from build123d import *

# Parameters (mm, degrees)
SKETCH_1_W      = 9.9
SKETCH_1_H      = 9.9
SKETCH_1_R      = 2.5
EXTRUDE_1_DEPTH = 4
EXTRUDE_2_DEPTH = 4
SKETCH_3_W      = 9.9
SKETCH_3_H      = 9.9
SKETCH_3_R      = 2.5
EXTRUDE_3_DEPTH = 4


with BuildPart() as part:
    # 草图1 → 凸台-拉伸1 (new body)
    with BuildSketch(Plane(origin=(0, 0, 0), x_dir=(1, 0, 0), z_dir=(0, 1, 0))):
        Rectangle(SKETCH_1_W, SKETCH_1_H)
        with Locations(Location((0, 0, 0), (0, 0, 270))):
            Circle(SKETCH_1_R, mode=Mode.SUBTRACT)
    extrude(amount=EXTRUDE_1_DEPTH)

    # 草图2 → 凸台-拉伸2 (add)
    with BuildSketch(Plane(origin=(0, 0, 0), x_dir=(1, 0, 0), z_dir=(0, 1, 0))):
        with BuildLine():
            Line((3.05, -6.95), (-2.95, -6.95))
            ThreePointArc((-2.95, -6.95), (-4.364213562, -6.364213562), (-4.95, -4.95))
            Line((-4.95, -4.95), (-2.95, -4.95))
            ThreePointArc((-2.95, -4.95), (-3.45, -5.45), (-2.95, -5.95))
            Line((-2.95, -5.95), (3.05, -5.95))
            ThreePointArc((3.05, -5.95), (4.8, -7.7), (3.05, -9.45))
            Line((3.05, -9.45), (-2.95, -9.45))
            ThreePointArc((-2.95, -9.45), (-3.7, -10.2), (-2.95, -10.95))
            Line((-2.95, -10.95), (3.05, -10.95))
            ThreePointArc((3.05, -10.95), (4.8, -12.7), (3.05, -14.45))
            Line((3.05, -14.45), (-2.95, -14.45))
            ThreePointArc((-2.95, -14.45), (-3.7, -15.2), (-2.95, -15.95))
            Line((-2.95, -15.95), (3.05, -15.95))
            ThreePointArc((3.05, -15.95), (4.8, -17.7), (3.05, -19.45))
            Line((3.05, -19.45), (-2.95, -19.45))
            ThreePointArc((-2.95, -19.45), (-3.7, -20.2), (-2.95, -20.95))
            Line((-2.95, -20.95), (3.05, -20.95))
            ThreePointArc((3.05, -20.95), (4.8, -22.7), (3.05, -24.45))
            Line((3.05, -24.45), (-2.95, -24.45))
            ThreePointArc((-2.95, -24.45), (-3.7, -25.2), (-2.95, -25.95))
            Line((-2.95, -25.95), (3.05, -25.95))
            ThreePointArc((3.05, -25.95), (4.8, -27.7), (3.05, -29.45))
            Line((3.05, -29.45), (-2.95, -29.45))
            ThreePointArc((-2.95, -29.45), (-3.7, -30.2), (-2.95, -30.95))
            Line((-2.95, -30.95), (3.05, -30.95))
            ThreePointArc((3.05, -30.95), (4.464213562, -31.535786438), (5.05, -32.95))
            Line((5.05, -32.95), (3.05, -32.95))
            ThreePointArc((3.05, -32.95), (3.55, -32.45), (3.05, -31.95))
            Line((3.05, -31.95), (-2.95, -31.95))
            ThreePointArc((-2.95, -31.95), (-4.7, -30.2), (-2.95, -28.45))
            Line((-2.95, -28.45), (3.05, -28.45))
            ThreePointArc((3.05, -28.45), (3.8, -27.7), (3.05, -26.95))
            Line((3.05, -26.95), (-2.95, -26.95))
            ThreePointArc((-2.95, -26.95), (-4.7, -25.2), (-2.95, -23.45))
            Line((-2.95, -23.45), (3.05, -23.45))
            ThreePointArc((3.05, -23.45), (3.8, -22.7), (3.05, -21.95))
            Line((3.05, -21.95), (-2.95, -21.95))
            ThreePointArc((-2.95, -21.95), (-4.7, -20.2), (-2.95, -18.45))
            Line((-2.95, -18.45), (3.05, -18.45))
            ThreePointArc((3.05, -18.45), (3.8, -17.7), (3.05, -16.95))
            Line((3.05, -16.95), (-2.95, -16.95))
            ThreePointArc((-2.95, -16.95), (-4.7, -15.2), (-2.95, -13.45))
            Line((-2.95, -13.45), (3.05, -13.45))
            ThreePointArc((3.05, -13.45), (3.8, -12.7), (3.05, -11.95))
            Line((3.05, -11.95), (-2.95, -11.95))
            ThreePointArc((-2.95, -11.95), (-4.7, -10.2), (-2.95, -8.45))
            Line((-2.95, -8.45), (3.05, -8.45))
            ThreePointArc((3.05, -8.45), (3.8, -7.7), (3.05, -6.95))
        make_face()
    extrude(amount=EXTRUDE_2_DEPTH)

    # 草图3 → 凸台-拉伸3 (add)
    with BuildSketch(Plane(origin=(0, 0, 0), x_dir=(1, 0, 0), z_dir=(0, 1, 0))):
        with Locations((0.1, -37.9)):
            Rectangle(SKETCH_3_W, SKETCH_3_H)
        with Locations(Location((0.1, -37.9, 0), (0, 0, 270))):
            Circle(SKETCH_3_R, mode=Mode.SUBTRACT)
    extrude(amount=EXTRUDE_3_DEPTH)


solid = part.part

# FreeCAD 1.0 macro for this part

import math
import FreeCAD as App
import Part
import Sketcher

V = App.Vector
Q = App.Units.Quantity


def add_polygon(sketch, points):
    """Adds a closed chain of lines whose ends are joined by coincident constraints."""
    first, n = sketch.GeometryCount, len(points)
    for a, b in zip(points, points[1:] + points[:1]):
        sketch.addGeometry(Part.LineSegment(App.Vector(*a, 0), App.Vector(*b, 0)), False)
    for i in range(n):
        sketch.addConstraint(Sketcher.Constraint("Coincident", first + i, 2, first + (i + 1) % n, 1))

doc = App.newDocument("Part")
params = doc.addObject("Spreadsheet::Sheet", "Params")
for row, (alias, value) in enumerate([
    ("sketch1_diameter", "5 mm"),
    ("sketch1_width", "9.9 mm"),
    ("pad1_length", "4 mm"),
    ("sketch2_radius", "2 mm"),
    ("sketch2_radius2", "0.5 mm"),
    ("sketch2_width", "6 mm"),
    ("sketch2_radius3", "0.75 mm"),
    ("pad2_length", "4 mm"),
    ("sketch3_diameter", "5 mm"),
    ("sketch3_width", "9.9 mm"),
    ("pad3_length", "4 mm"),
], start=1):
    params.set(f"A{row}", alias)
    params.set(f"B{row}", "=" + value)
    params.setAlias(f"B{row}", alias)

body = doc.addObject("PartDesign::Body", "Body")

# Sketch on XZ plane
sketch1 = body.newObject("Sketcher::SketchObject", "Sketch")
sketch1.AttachmentSupport = (doc.getObject("XZ_Plane"), [""])
sketch1.MapMode = "FlatFace"
add_polygon(sketch1, [(-5, -5), (-5, 5), (5, 5), (5, -5)])  # lines 0-3
sketch1.addGeometry(Part.Circle(V(0, 0, 0), V(0, 0, 1), 2.5), False)  # 4
sketch1.addConstraint([
    Sketcher.Constraint("Vertical", 0),
    Sketcher.Constraint("Horizontal", 1),
    Sketcher.Constraint("Vertical", 2),
    Sketcher.Constraint("Horizontal", 3),
    Sketcher.Constraint("Coincident", 4, 3, -1, 1),
    Sketcher.Constraint("Symmetric", 0, 2, 2, 2, -1, 1),
    Sketcher.Constraint("Equal", 3, 0),
    Sketcher.Constraint("Diameter", 4, Q("5 mm")),
    Sketcher.Constraint("DistanceX", 1, 1, 1, 2, Q("9.9 mm")),
])
sketch1.setExpression("Constraints[11]", "Params.sketch1_diameter")
sketch1.setExpression("Constraints[12]", "Params.sketch1_width")
pad1 = body.newObject("PartDesign::Pad", "Pad")
pad1.Profile = sketch1
pad1.setExpression("Length", "Params.pad1_length")
pad1.Reversed = True

# Sketch on XZ plane
sketch2 = body.newObject("Sketcher::SketchObject", "Sketch001")
sketch2.AttachmentSupport = (doc.getObject("XZ_Plane"), [""])
sketch2.MapMode = "FlatFace"
sketch2.addGeometry([
    Part.LineSegment(V(-3, 7, 0), V(3, 7, 0)),  # 0
    Part.ArcOfCircle(Part.Circle(V(3, 7.7, 0), V(0, 0, 1), 0.8), math.radians(-90), math.radians(90)),  # 1
    Part.LineSegment(V(3, 8.4, 0), V(-3, 8.4, 0)),  # 2
    Part.ArcOfCircle(Part.Circle(V(-3, 10.2, 0), V(0, 0, 1), 1.8), math.radians(90), math.radians(270)),  # 3
    Part.LineSegment(V(-3, 11.9, 0), V(3, 11.9, 0)),  # 4
    Part.ArcOfCircle(Part.Circle(V(3, 12.7, 0), V(0, 0, 1), 0.8), math.radians(-90), math.radians(90)),  # 5
    Part.LineSegment(V(3, 13.4, 0), V(-3, 13.4, 0)),  # 6
    Part.ArcOfCircle(Part.Circle(V(-3, 15.2, 0), V(0, 0, 1), 1.8), math.radians(90), math.radians(270)),  # 7
    Part.LineSegment(V(-3, 16.9, 0), V(3, 16.9, 0)),  # 8
    Part.ArcOfCircle(Part.Circle(V(3, 17.7, 0), V(0, 0, 1), 0.8), math.radians(-90), math.radians(90)),  # 9
    Part.LineSegment(V(3, 18.4, 0), V(-3, 18.4, 0)),  # 10
    Part.ArcOfCircle(Part.Circle(V(-3, 20.2, 0), V(0, 0, 1), 1.8), math.radians(90), math.radians(270)),  # 11
    Part.LineSegment(V(-3, 21.9, 0), V(3, 21.9, 0)),  # 12
    Part.ArcOfCircle(Part.Circle(V(3, 22.7, 0), V(0, 0, 1), 0.8), math.radians(-90), math.radians(90)),  # 13
    Part.LineSegment(V(3, 23.4, 0), V(-3, 23.4, 0)),  # 14
    Part.ArcOfCircle(Part.Circle(V(-3, 25.2, 0), V(0, 0, 1), 1.8), math.radians(90), math.radians(270)),  # 15
    Part.LineSegment(V(-3, 26.9, 0), V(3, 26.9, 0)),  # 16
    Part.ArcOfCircle(Part.Circle(V(3, 27.7, 0), V(0, 0, 1), 0.8), math.radians(-90), math.radians(90)),  # 17
    Part.LineSegment(V(3, 28.4, 0), V(-3, 28.4, 0)),  # 18
    Part.ArcOfCircle(Part.Circle(V(-3, 30.2, 0), V(0, 0, 1), 1.8), math.radians(90), math.radians(270)),  # 19
    Part.LineSegment(V(-3, 31.9, 0), V(3, 31.9, 0)),  # 20
    Part.ArcOfCircle(Part.Circle(V(3, 32.5, 0), V(0, 0, 1), 0.5), math.radians(-90), math.radians(90)),  # 21
    Part.LineSegment(V(3, 33, 0), V(5, 33, 0)),  # 22
    Part.ArcOfCircle(Part.Circle(V(3, 33, 0), V(0, 0, 1), 2), math.radians(-90), math.radians(0)),  # 23
    Part.LineSegment(V(3, 30.9, 0), V(-3, 30.9, 0)),  # 24
    Part.ArcOfCircle(Part.Circle(V(-3, 30.2, 0), V(0, 0, 1), 0.8), math.radians(90), math.radians(270)),  # 25
    Part.LineSegment(V(-3, 29.4, 0), V(3, 29.4, 0)),  # 26
    Part.ArcOfCircle(Part.Circle(V(3, 27.7, 0), V(0, 0, 1), 1.8), math.radians(-90), math.radians(90)),  # 27
    Part.LineSegment(V(3, 25.9, 0), V(-3, 25.9, 0)),  # 28
    Part.ArcOfCircle(Part.Circle(V(-3, 25.2, 0), V(0, 0, 1), 0.8), math.radians(90), math.radians(270)),  # 29
    Part.LineSegment(V(-3, 24.4, 0), V(3, 24.4, 0)),  # 30
    Part.ArcOfCircle(Part.Circle(V(3, 22.7, 0), V(0, 0, 1), 1.8), math.radians(-90), math.radians(90)),  # 31
    Part.LineSegment(V(3, 20.9, 0), V(-3, 20.9, 0)),  # 32
    Part.ArcOfCircle(Part.Circle(V(-3, 20.2, 0), V(0, 0, 1), 0.8), math.radians(90), math.radians(270)),  # 33
    Part.LineSegment(V(-3, 19.4, 0), V(3, 19.4, 0)),  # 34
    Part.ArcOfCircle(Part.Circle(V(3, 17.7, 0), V(0, 0, 1), 1.8), math.radians(-90), math.radians(90)),  # 35
    Part.LineSegment(V(3, 15.9, 0), V(-3, 15.9, 0)),  # 36
    Part.ArcOfCircle(Part.Circle(V(-3, 15.2, 0), V(0, 0, 1), 0.8), math.radians(90), math.radians(270)),  # 37
    Part.LineSegment(V(-3, 14.4, 0), V(3, 14.4, 0)),  # 38
    Part.ArcOfCircle(Part.Circle(V(3, 12.7, 0), V(0, 0, 1), 1.8), math.radians(-90), math.radians(90)),  # 39
    Part.LineSegment(V(3, 10.9, 0), V(-3, 10.9, 0)),  # 40
    Part.ArcOfCircle(Part.Circle(V(-3, 10.2, 0), V(0, 0, 1), 0.8), math.radians(90), math.radians(270)),  # 41
    Part.LineSegment(V(-3, 9.4, 0), V(3, 9.4, 0)),  # 42
    Part.ArcOfCircle(Part.Circle(V(3, 7.7, 0), V(0, 0, 1), 1.8), math.radians(-90), math.radians(90)),  # 43
    Part.LineSegment(V(3, 6, 0), V(-3, 6, 0)),  # 44
    Part.ArcOfCircle(Part.Circle(V(-3, 5.5, 0), V(0, 0, 1), 0.5), math.radians(90), math.radians(270)),  # 45
    Part.LineSegment(V(-3, 5, 0), V(-5, 5, 0)),  # 46
    Part.ArcOfCircle(Part.Circle(V(-2.9, 4.9, 0), V(0, 0, 1), 2), math.radians(90), math.radians(180)),  # 47
], False)
sketch2.addConstraint([
    Sketcher.Constraint("Tangent", 0, 2, 1, 1),
    Sketcher.Constraint("Tangent", 1, 2, 2, 1),
    Sketcher.Constraint("Tangent", 2, 2, 3, 2),
    Sketcher.Constraint("Tangent", 3, 1, 4, 1),
    Sketcher.Constraint("Tangent", 4, 2, 5, 1),
    Sketcher.Constraint("Tangent", 5, 2, 6, 1),
    Sketcher.Constraint("Tangent", 6, 2, 7, 2),
    Sketcher.Constraint("Tangent", 7, 1, 8, 1),
    Sketcher.Constraint("Tangent", 8, 2, 9, 1),
    Sketcher.Constraint("Tangent", 9, 2, 10, 1),
    Sketcher.Constraint("Tangent", 10, 2, 11, 2),
    Sketcher.Constraint("Tangent", 11, 1, 12, 1),
    Sketcher.Constraint("Tangent", 12, 2, 13, 1),
    Sketcher.Constraint("Tangent", 13, 2, 14, 1),
    Sketcher.Constraint("Tangent", 14, 2, 15, 2),
    Sketcher.Constraint("Tangent", 15, 1, 16, 1),
    Sketcher.Constraint("Tangent", 16, 2, 17, 1),
    Sketcher.Constraint("Tangent", 17, 2, 18, 1),
    Sketcher.Constraint("Tangent", 18, 2, 19, 2),
    Sketcher.Constraint("Tangent", 19, 1, 20, 1),
    Sketcher.Constraint("Tangent", 20, 2, 21, 1),
    Sketcher.Constraint("Tangent", 21, 2, 22, 1),
    Sketcher.Constraint("Coincident", 22, 2, 23, 2),
    Sketcher.Constraint("Tangent", 23, 1, 24, 1),
    Sketcher.Constraint("Tangent", 24, 2, 25, 1),
    Sketcher.Constraint("Tangent", 25, 2, 26, 1),
    Sketcher.Constraint("Tangent", 26, 2, 27, 2),
    Sketcher.Constraint("Tangent", 27, 1, 28, 1),
    Sketcher.Constraint("Tangent", 28, 2, 29, 1),
    Sketcher.Constraint("Tangent", 29, 2, 30, 1),
    Sketcher.Constraint("Tangent", 30, 2, 31, 2),
    Sketcher.Constraint("Tangent", 31, 1, 32, 1),
    Sketcher.Constraint("Tangent", 32, 2, 33, 1),
    Sketcher.Constraint("Tangent", 33, 2, 34, 1),
    Sketcher.Constraint("Tangent", 34, 2, 35, 2),
    Sketcher.Constraint("Tangent", 35, 1, 36, 1),
    Sketcher.Constraint("Tangent", 36, 2, 37, 1),
    Sketcher.Constraint("Tangent", 37, 2, 38, 1),
    Sketcher.Constraint("Tangent", 38, 2, 39, 2),
    Sketcher.Constraint("Tangent", 39, 1, 40, 1),
    Sketcher.Constraint("Tangent", 40, 2, 41, 1),
    Sketcher.Constraint("Tangent", 41, 2, 42, 1),
    Sketcher.Constraint("Tangent", 42, 2, 43, 2),
    Sketcher.Constraint("Tangent", 43, 1, 44, 1),
    Sketcher.Constraint("Tangent", 44, 2, 45, 1),
    Sketcher.Constraint("Tangent", 45, 2, 46, 1),
    Sketcher.Constraint("Coincident", 46, 2, 47, 2),
    Sketcher.Constraint("Tangent", 47, 1, 0, 1),
    Sketcher.Constraint("Horizontal", 0),
    Sketcher.Constraint("Horizontal", 2),
    Sketcher.Constraint("Horizontal", 4),
    Sketcher.Constraint("Horizontal", 6),
    Sketcher.Constraint("Horizontal", 8),
    Sketcher.Constraint("Horizontal", 10),
    Sketcher.Constraint("Horizontal", 12),
    Sketcher.Constraint("Horizontal", 14),
    Sketcher.Constraint("Horizontal", 16),
    Sketcher.Constraint("Horizontal", 18),
    Sketcher.Constraint("Horizontal", 20),
    Sketcher.Constraint("Horizontal", 22),
    Sketcher.Constraint("Horizontal", 24),
    Sketcher.Constraint("Horizontal", 26),
    Sketcher.Constraint("Horizontal", 28),
    Sketcher.Constraint("Horizontal", 30),
    Sketcher.Constraint("Horizontal", 32),
    Sketcher.Constraint("Horizontal", 34),
    Sketcher.Constraint("Horizontal", 36),
    Sketcher.Constraint("Horizontal", 38),
    Sketcher.Constraint("Horizontal", 40),
    Sketcher.Constraint("Horizontal", 42),
    Sketcher.Constraint("Horizontal", 44),
    Sketcher.Constraint("Horizontal", 46),
    Sketcher.Constraint("Coincident", 25, 3, 19, 3),
    Sketcher.Constraint("Coincident", 27, 3, 17, 3),
    Sketcher.Constraint("Coincident", 29, 3, 15, 3),
    Sketcher.Constraint("Coincident", 31, 3, 13, 3),
    Sketcher.Constraint("Coincident", 33, 3, 11, 3),
    Sketcher.Constraint("Coincident", 35, 3, 9, 3),
    Sketcher.Constraint("Coincident", 37, 3, 7, 3),
    Sketcher.Constraint("Coincident", 39, 3, 5, 3),
    Sketcher.Constraint("Coincident", 41, 3, 3, 3),
    Sketcher.Constraint("Coincident", 43, 3, 1, 3),
    Sketcher.Constraint("Coincident", 21, 2, 23, 3),
    Sketcher.Constraint("Coincident", 45, 2, 47, 3),
    Sketcher.Constraint("Equal", 1, 5),
    Sketcher.Constraint("Equal", 3, 7),
    Sketcher.Constraint("Equal", 5, 9),
    Sketcher.Constraint("Equal", 7, 11),
    Sketcher.Constraint("Equal", 9, 13),
    Sketcher.Constraint("Equal", 11, 15),
    Sketcher.Constraint("Equal", 13, 17),
    Sketcher.Constraint("Equal", 15, 19),
    Sketcher.Constraint("Equal", 17, 25),
    Sketcher.Constraint("Equal", 21, 45),
    Sketcher.Constraint("Vertical", 1, 3, 5, 3),
    Sketcher.Constraint("Vertical", 3, 3, 7, 3),
    Sketcher.Constraint("Vertical", 5, 3, 9, 3),
    Sketcher.Constraint("Vertical", 7, 3, 11, 3),
    Sketcher.Constraint("Vertical", 9, 3, 13, 3),
    Sketcher.Constraint("Vertical", 11, 3, 15, 3),
    Sketcher.Constraint("Vertical", 13, 3, 17, 3),
    Sketcher.Constraint("Vertical", 15, 3, 19, 3),
    Sketcher.Constraint("Vertical", 17, 3, 21, 3),
    Sketcher.Constraint("Vertical", 41, 3, 45, 3),
    Sketcher.Constraint("Radius", 23, Q("2 mm")),
    Sketcher.Constraint("Radius", 21, Q("0.5 mm")),
    Sketcher.Constraint("DistanceX", 0, 1, 0, 2, Q("6 mm")),
    Sketcher.Constraint("Radius", 1, Q("0.75 mm")),
    Sketcher.Constraint("DistanceY", -1, 1, 1, 3, Q("7.7 mm")),
    Sketcher.Constraint("DistanceX", -1, 1, 1, 3, Q("3.05 mm")),
])
sketch2.setExpression("Constraints[104]", "Params.sketch2_radius")
sketch2.setExpression("Constraints[105]", "Params.sketch2_radius2")
sketch2.setExpression("Constraints[106]", "Params.sketch2_width")
sketch2.setExpression("Constraints[107]", "Params.sketch2_radius3")
pad2 = body.newObject("PartDesign::Pad", "Pad001")
pad2.Profile = sketch2
pad2.setExpression("Length", "Params.pad2_length")
pad2.Reversed = True

# Sketch on XZ plane
sketch3 = body.newObject("Sketcher::SketchObject", "Sketch002")
sketch3.AttachmentSupport = (doc.getObject("XZ_Plane"), [""])
sketch3.MapMode = "FlatFace"
add_polygon(sketch3, [(-4.8, 33), (-4.8, 42.9), (5, 42.9), (5, 33)])  # lines 0-3
sketch3.addGeometry(Part.Circle(V(0.1, 37.9, 0), V(0, 0, 1), 2.5), False)  # 4
sketch3.addConstraint([
    Sketcher.Constraint("Vertical", 0),
    Sketcher.Constraint("Horizontal", 1),
    Sketcher.Constraint("Vertical", 2),
    Sketcher.Constraint("Horizontal", 3),
    Sketcher.Constraint("Equal", 3, 0),
    Sketcher.Constraint("Diameter", 4, Q("5 mm")),
    Sketcher.Constraint("DistanceX", 1, 1, 1, 2, Q("9.9 mm")),
    Sketcher.Constraint("DistanceX", -1, 1, 4, 3, Q("0.1 mm")),
    Sketcher.Constraint("DistanceY", -1, 1, 4, 3, Q("37.9 mm")),
    Sketcher.Constraint("DistanceX", 0, 2, -1, 1, Q("4.85 mm")),
    Sketcher.Constraint("DistanceY", -1, 1, 0, 2, Q("42.85 mm")),
])
sketch3.setExpression("Constraints[9]", "Params.sketch3_diameter")
sketch3.setExpression("Constraints[10]", "Params.sketch3_width")
pad3 = body.newObject("PartDesign::Pad", "Pad002")
pad3.Profile = sketch3
pad3.setExpression("Length", "Params.pad3_length")
pad3.Reversed = True

doc.recompute()
